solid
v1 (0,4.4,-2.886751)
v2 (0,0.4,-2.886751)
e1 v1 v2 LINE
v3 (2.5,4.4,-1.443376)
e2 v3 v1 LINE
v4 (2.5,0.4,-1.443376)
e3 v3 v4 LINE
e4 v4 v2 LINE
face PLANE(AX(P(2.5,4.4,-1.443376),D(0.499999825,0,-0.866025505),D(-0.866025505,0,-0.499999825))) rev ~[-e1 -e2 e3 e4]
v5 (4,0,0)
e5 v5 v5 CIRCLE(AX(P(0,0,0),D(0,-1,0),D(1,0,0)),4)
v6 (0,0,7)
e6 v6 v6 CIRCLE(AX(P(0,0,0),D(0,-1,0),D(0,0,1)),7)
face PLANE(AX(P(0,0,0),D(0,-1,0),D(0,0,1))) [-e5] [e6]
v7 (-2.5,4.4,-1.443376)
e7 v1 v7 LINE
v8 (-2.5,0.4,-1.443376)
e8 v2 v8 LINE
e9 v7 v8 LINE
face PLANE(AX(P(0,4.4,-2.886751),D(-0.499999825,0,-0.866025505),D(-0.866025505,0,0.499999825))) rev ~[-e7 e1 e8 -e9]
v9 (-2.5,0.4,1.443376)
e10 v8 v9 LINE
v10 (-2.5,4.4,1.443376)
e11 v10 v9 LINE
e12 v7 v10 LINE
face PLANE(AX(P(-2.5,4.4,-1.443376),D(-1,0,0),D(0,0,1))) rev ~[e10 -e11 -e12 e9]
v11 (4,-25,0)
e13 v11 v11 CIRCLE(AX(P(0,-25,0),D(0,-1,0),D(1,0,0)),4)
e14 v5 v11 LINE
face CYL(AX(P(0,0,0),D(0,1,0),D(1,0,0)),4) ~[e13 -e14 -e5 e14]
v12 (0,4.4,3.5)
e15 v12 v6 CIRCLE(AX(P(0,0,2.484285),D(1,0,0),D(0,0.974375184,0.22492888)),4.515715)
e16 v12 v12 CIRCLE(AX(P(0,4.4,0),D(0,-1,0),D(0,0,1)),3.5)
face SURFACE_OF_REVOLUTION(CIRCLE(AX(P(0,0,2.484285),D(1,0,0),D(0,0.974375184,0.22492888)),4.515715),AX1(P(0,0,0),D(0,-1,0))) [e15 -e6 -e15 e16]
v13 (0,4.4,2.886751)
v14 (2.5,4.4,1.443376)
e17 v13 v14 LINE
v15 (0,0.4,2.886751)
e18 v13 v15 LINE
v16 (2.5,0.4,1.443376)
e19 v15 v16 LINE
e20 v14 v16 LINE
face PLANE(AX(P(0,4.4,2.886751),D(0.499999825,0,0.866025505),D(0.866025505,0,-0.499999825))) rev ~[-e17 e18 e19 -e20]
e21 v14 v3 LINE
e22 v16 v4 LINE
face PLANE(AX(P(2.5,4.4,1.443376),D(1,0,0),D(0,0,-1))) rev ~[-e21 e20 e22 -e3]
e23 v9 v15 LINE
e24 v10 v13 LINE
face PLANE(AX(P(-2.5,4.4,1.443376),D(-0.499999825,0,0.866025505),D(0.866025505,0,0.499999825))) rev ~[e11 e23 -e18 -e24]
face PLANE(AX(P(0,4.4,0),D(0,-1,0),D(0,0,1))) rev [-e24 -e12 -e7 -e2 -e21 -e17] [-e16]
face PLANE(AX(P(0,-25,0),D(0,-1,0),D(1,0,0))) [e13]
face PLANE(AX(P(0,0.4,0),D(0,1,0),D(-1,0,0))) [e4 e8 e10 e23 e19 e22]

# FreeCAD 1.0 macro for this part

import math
import FreeCAD as App
import Part
import Sketcher
Q = App.Units.Quantity

doc = App.newDocument("Part")
body = doc.addObject("PartDesign::Body", "Body")

# Sketch on XZ plane
sketch1 = body.newObject("Sketcher::SketchObject", "Sketch")
sketch1.AttachmentSupport = (doc.getObject("XZ_Plane"), [""])
sketch1.MapMode = "FlatFace"
sketch1.addGeometry(Part.Circle(App.Vector(0, 0, 0), App.Vector(0, 0, 1), 4), False)
sketch1.addConstraint(Sketcher.Constraint("Coincident", 0, 3, -1, 1))
sketch1.addConstraint(Sketcher.Constraint("Diameter", 0, 8.0))
pad1 = body.newObject("PartDesign::Pad", "Pad")
pad1.Profile = sketch1
pad1.Length = 25

# Sketch on YZ plane
sketch2 = body.newObject("Sketcher::SketchObject", "Sketch001")
sketch2.AttachmentSupport = (doc.getObject("YZ_Plane"), [""])
sketch2.MapMode = "FlatFace"
sketch2.addGeometry(Part.LineSegment(App.Vector(0, 7, 0), App.Vector(0, 0, 0)), False)
sketch2.addGeometry(Part.LineSegment(App.Vector(0, 0, 0), App.Vector(4.4, 0, 0)), False)
sketch2.addGeometry(Part.LineSegment(App.Vector(4.4, 0, 0), App.Vector(4.4, 3.5, 0)), False)
sketch2.addGeometry(Part.ArcOfCircle(Part.Circle(App.Vector(0, 2.5, 0), App.Vector(0, 0, 1), 4.5), math.radians(13), math.radians(90)), False)
sketch2.addConstraint(Sketcher.Constraint("Coincident", 0, 2, 1, 1))
sketch2.addConstraint(Sketcher.Constraint("Coincident", 1, 2, 2, 1))
sketch2.addConstraint(Sketcher.Constraint("Coincident", 2, 2, 3, 1))
sketch2.addConstraint(Sketcher.Constraint("Coincident", 3, 2, 0, 1))
sketch2.addConstraint(Sketcher.Constraint("Vertical", 0))
sketch2.addConstraint(Sketcher.Constraint("Horizontal", 1))
sketch2.addConstraint(Sketcher.Constraint("Vertical", 2))
sketch2.addConstraint(Sketcher.Constraint("Coincident", 0, 2, -1, 1))
sketch2.addConstraint(Sketcher.Constraint("PointOnObject", 3, 3, -2))
sketch2.addConstraint(Sketcher.Constraint("DistanceY", 0, 2, 0, 1, 7.0))
sketch2.addConstraint(Sketcher.Constraint("DistanceX", 1, 1, 1, 2, 4.4))
sketch2.addConstraint(Sketcher.Constraint("DistanceY", 2, 1, 2, 2, 3.5))
revolution = body.newObject("PartDesign::Revolution", "Revolution")
revolution.Profile = sketch2
revolution.ReferenceAxis = (sketch2, ["H_Axis"])
revolution.Angle = 360

# Sketch on XZ plane
sketch3 = body.newObject("Sketcher::SketchObject", "Sketch002")
sketch3.AttachmentSupport = (doc.getObject("XZ_Plane"), [""])
sketch3.MapMode = "FlatFace"
sketch3.AttachmentOffset = App.Placement(App.Vector(0, 0, -4.4), App.Rotation())
sketch3.addGeometry(Part.LineSegment(App.Vector(2.5, 1.4, 0), App.Vector(2.5, -1.4, 0)), False)
sketch3.addGeometry(Part.LineSegment(App.Vector(2.5, -1.4, 0), App.Vector(0, -2.9, 0)), False)
sketch3.addGeometry(Part.LineSegment(App.Vector(0, -2.9, 0), App.Vector(-2.5, -1.4, 0)), False)
sketch3.addGeometry(Part.LineSegment(App.Vector(-2.5, -1.4, 0), App.Vector(-2.5, 1.4, 0)), False)
sketch3.addGeometry(Part.LineSegment(App.Vector(-2.5, 1.4, 0), App.Vector(0, 2.9, 0)), False)
sketch3.addGeometry(Part.LineSegment(App.Vector(0, 2.9, 0), App.Vector(2.5, 1.4, 0)), False)
sketch3.addConstraint(Sketcher.Constraint("Coincident", 0, 2, 1, 1))
sketch3.addConstraint(Sketcher.Constraint("Coincident", 1, 2, 2, 1))
sketch3.addConstraint(Sketcher.Constraint("Coincident", 2, 2, 3, 1))
sketch3.addConstraint(Sketcher.Constraint("Coincident", 3, 2, 4, 1))
sketch3.addConstraint(Sketcher.Constraint("Coincident", 4, 2, 5, 1))
sketch3.addConstraint(Sketcher.Constraint("Coincident", 5, 2, 0, 1))
sketch3.addConstraint(Sketcher.Constraint("Vertical", 0))
sketch3.addConstraint(Sketcher.Constraint("Vertical", 3))
sketch3.addConstraint(Sketcher.Constraint("Symmetric", 0, 2, 3, 2, -1, 1))
sketch3.addConstraint(Sketcher.Constraint("Symmetric", 1, 2, 4, 2, -1, 1))
sketch3.addConstraint(Sketcher.Constraint("PointOnObject", 1, 2, -2))
sketch3.addConstraint(Sketcher.Constraint("Parallel", 2, 5))
sketch3.addConstraint(Sketcher.Constraint("Horizontal", 0, 2, 2, 2))
sketch3.addConstraint(Sketcher.Constraint("Angle", 1, Q("-150.000012 deg")))
sketch3.addConstraint(Sketcher.Constraint("DistanceX", 2, 2, 0, 2, 5.0))
sketch3.addConstraint(Sketcher.Constraint("DistanceY", 0, 2, 0, 1, 2.886752))
pocket1 = body.newObject("PartDesign::Pocket", "Pocket")
pocket1.Profile = sketch3
pocket1.Length = 4
pocket1.Reversed = True

doc.recompute()
